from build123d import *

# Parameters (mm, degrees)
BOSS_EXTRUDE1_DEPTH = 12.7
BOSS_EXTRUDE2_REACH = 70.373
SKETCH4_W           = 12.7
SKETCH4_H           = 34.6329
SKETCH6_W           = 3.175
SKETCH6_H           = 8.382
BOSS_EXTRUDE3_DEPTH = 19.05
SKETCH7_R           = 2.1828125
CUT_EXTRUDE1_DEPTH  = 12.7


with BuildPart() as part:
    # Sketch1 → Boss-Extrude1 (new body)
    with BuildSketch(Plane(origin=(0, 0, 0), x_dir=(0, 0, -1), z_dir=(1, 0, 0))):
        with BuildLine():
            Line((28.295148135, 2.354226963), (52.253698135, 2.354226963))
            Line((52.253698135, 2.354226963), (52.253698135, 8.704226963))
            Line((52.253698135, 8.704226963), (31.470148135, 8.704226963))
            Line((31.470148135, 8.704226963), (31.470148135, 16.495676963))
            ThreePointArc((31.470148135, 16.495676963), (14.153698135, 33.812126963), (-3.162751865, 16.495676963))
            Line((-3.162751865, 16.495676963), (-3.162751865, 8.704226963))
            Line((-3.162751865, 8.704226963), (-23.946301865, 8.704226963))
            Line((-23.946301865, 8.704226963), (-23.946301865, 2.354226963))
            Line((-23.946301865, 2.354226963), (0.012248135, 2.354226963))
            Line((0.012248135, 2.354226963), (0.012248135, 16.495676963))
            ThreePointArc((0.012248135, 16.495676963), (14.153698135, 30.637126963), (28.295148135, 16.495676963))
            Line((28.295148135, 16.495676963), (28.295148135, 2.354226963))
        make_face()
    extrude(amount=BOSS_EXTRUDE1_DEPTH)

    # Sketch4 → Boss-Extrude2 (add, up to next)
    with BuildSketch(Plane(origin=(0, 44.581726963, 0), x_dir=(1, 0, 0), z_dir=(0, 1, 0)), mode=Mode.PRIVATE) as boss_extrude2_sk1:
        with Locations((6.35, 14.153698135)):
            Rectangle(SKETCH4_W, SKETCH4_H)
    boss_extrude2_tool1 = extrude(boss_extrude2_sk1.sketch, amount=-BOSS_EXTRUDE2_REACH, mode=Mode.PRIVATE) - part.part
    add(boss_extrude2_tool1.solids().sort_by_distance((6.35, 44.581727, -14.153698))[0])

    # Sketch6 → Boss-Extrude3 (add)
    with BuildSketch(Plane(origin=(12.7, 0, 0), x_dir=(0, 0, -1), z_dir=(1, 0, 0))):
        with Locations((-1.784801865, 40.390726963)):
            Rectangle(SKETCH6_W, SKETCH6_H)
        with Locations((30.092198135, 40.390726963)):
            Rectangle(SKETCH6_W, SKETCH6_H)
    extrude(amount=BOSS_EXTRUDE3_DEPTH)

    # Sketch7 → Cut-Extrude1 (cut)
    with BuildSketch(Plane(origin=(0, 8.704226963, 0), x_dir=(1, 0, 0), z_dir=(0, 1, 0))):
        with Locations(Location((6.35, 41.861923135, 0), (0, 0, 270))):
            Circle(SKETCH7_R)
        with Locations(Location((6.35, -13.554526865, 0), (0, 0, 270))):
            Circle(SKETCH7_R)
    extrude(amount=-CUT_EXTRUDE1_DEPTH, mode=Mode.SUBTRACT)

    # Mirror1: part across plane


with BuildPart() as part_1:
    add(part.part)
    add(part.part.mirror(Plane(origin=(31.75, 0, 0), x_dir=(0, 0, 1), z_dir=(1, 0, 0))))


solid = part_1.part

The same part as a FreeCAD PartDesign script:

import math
import FreeCAD as App
import Part
import Sketcher
from FreeCAD import Vector
Q = App.Units.Quantity


def add_polygon(sketch, points):
    """Adds a closed chain of lines whose ends are joined by coincident constraints."""
    first, n = sketch.GeometryCount, len(points)
    for a, b in zip(points, points[1:] + points[:1]):
        sketch.addGeometry(Part.LineSegment(App.Vector(*a, 0), App.Vector(*b, 0)), False)
    for i in range(n):
        sketch.addConstraint(Sketcher.Constraint("Coincident", first + i, 2, first + (i + 1) % n, 1))

doc = App.newDocument("Part")
body = doc.addObject("PartDesign::Body", "Body")

sketch1 = doc.addObject("Sketcher::SketchObject", "Sketch")
body.addObject(sketch1)
sketch1.AttachmentSupport = (doc.YZ_Plane, [""])
sketch1.MapMode = "FlatFace"
sketch1.addGeometry([
    Part.LineSegment(Vector(2.354227, -28.295148, 0), Vector(2.354227, -52.253698, 0)),
    Part.LineSegment(Vector(2.354227, -52.253698, 0), Vector(8.704227, -52.253698, 0)),
    Part.LineSegment(Vector(8.704227, -52.253698, 0), Vector(8.704227, -31.470148, 0)),
    Part.LineSegment(Vector(8.704227, -31.470148, 0), Vector(16.495677, -31.470148, 0)),
    Part.ArcOfCircle(Part.Circle(Vector(16.495677, -14.153698, 0), Vector(0, 0, 1), 17.31645), math.radians(-90), math.radians(90)),
    Part.LineSegment(Vector(16.495677, 3.162752, 0), Vector(8.704227, 3.162752, 0)),
    Part.LineSegment(Vector(8.704227, 3.162752, 0), Vector(8.704227, 23.946302, 0)),
    Part.LineSegment(Vector(8.704227, 23.946302, 0), Vector(2.354227, 23.946302, 0)),
    Part.LineSegment(Vector(2.354227, 23.946302, 0), Vector(2.354227, -0.012248, 0)),
    Part.LineSegment(Vector(2.354227, -0.012248, 0), Vector(16.495677, -0.012248, 0)),
    Part.ArcOfCircle(Part.Circle(Vector(16.495677, -14.153698, 0), Vector(0, 0, 1), 14.14145), math.radians(-90), math.radians(90)),
    Part.LineSegment(Vector(16.495677, -28.295148, 0), Vector(2.354227, -28.295148, 0)),
], False)
sketch1.addConstraint([
    Sketcher.Constraint("Coincident", 0, 2, 1, 1),
    Sketcher.Constraint("Coincident", 1, 2, 2, 1),
    Sketcher.Constraint("Coincident", 2, 2, 3, 1),
    Sketcher.Constraint("Tangent", 3, 2, 4, 1),
    Sketcher.Constraint("Tangent", 4, 2, 5, 1),
    Sketcher.Constraint("Coincident", 5, 2, 6, 1),
    Sketcher.Constraint("Coincident", 6, 2, 7, 1),
    Sketcher.Constraint("Coincident", 7, 2, 8, 1),
    Sketcher.Constraint("Coincident", 8, 2, 9, 1),
    Sketcher.Constraint("Tangent", 9, 2, 10, 2),
    Sketcher.Constraint("Tangent", 10, 1, 11, 1),
    Sketcher.Constraint("Coincident", 11, 2, 0, 1),
    Sketcher.Constraint("Vertical", 0),
    Sketcher.Constraint("Horizontal", 1),
    Sketcher.Constraint("Vertical", 2),
    Sketcher.Constraint("Horizontal", 3),
    Sketcher.Constraint("Horizontal", 5),
    Sketcher.Constraint("Vertical", 6),
    Sketcher.Constraint("Horizontal", 7),
    Sketcher.Constraint("Vertical", 8),
    Sketcher.Constraint("Horizontal", 9),
    Sketcher.Constraint("Horizontal", 11),
    Sketcher.Constraint("Coincident", 10, 3, 4, 3),
    Sketcher.Constraint("Vertical", 2, 2, 5, 2),
    Sketcher.Constraint("Vertical", 0, 2, 7, 2),
    Sketcher.Constraint("Equal", 2, 6),
    Sketcher.Constraint("DistanceX", 1, 1, 1, 2, Q("0.25 in")),
    Sketcher.Constraint("DistanceY", 0, 2, 4, 3, Q("1.5 in")),
    Sketcher.Constraint("Radius", 4, Q("17.31645 mm")),
    Sketcher.Constraint("Radius", 10, Q("14.14145 mm")),
    Sketcher.Constraint("DistanceX", 3, 1, 3, 2, Q("7.79145 mm")),
    Sketcher.Constraint("DistanceY", 4, 3, -1, 1, Q("14.153698 mm")),
    Sketcher.Constraint("DistanceX", -1, 1, 4, 3, Q("16.495677 mm")),
])
pad1 = doc.addObject("PartDesign::Pad", "Pad")
body.addObject(pad1)
pad1.Profile = sketch1
pad1.Length = Q("0.5 in")

sketch2 = doc.addObject("Sketcher::SketchObject", "Sketch001")
body.addObject(sketch2)
sketch2.AttachmentSupport = (doc.XZ_Plane, [""])
sketch2.MapMode = "FlatFace"
sketch2.AttachmentOffset = App.Placement(Vector(0, 0, -44.581727), App.Rotation())
add_polygon(sketch2, [(0, -31.470148), (0, 3.162752), (12.7, 3.162752), (12.7, -31.470148)])
sketch2.addConstraint([
    Sketcher.Constraint("Vertical", 0),
    Sketcher.Constraint("Horizontal", 1),
    Sketcher.Constraint("Vertical", 2),
    Sketcher.Constraint("Horizontal", 3),
    Sketcher.Constraint("PointOnObject", 0, 2, -2),
    Sketcher.Constraint("DistanceX", 1, 1, 1, 2, Q("0.5 in")),
    Sketcher.Constraint("DistanceY", 0, 1, 0, 2, Q("1.3635 in")),
    Sketcher.Constraint("DistanceY", -1, 1, 0, 2, Q("3.162752 mm")),
])
pad2 = doc.addObject("PartDesign::Pad", "Pad001")
body.addObject(pad2)
pad2.Profile = sketch2
pad2.Type = "UpToFirst"

sketch3 = doc.addObject("Sketcher::SketchObject", "Sketch002")
body.addObject(sketch3)
sketch3.AttachmentSupport = (doc.YZ_Plane, [""])
sketch3.MapMode = "FlatFace"
sketch3.AttachmentOffset = App.Placement(Vector(0, 0, 0.5 * 25.4), App.Rotation())
add_polygon(sketch3, [(44.581727, 3.372302), (36.199727, 3.372302), (36.199727, 0.197302), (44.581727, 0.197302)])
add_polygon(sketch3, [(44.581727, -28.504698), (36.199727, -28.504698), (36.199727, -31.679698), (44.581727, -31.679698)])
sketch3.addConstraint([
    Sketcher.Constraint("Horizontal", 0),
    Sketcher.Constraint("Vertical", 1),
    Sketcher.Constraint("Horizontal", 2),
    Sketcher.Constraint("Vertical", 3),
    Sketcher.Constraint("Horizontal", 4),
    Sketcher.Constraint("Vertical", 5),
    Sketcher.Constraint("Horizontal", 6),
    Sketcher.Constraint("Vertical", 7),
    Sketcher.Constraint("Vertical", 1, 2, 4, 2),
    Sketcher.Constraint("Vertical", 3, 2, 6, 2),
    Sketcher.Constraint("Equal", 3, 5),
    Sketcher.Constraint("DistanceX", 0, 2, 0, 1, Q("0.33 in")),
    Sketcher.Constraint("DistanceY", 1, 2, 1, 1, Q("0.125 in")),
    Sketcher.Constraint("DistanceY", 4, 2, 1, 2, Q("1.13 in")),
    Sketcher.Constraint("DistanceY", -1, 1, 0, 2, Q("3.372302 mm")),
    Sketcher.Constraint("DistanceX", -1, 1, 0, 2, Q("36.199727 mm")),
])
pad3 = doc.addObject("PartDesign::Pad", "Pad002")
body.addObject(pad3)
pad3.Profile = sketch3
pad3.Length = Q("0.75 in")

sketch4 = doc.addObject("Sketcher::SketchObject", "Sketch003")
body.addObject(sketch4)
sketch4.AttachmentSupport = (doc.XZ_Plane, [""])
sketch4.MapMode = "FlatFace"
sketch4.AttachmentOffset = App.Placement(Vector(0, 0, -8.704227), App.Rotation())
sketch4.addGeometry([
    Part.Circle(Vector(6.35, -41.861923, 0), Vector(0, 0, 1), 2.182812),
    Part.Circle(Vector(6.35, 13.554527, 0), Vector(0, 0, 1), 2.182812),
], False)
sketch4.addConstraint([
    Sketcher.Constraint("Equal", 0, 1),
    Sketcher.Constraint("Vertical", 0, 3, 1, 3),
    Sketcher.Constraint("Diameter", 0, Q("0.171875 in")),
    Sketcher.Constraint("DistanceX", -1, 1, 0, 3, Q("0.25 in")),
    Sketcher.Constraint("DistanceY", 0, 3, 1, 3, Q("55.41645 mm")),
    Sketcher.Constraint("DistanceY", 0, 3, -1, 1, Q("41.861923 mm")),
])
pocket1 = doc.addObject("PartDesign::Pocket", "Pocket")
body.addObject(pocket1)
pocket1.Profile = sketch4
pocket1.Length = Q("0.5 in")
pocket1.Reversed = True
body2 = doc.addObject("PartDesign::Body", "Body001")
doc.recompute()

body2.BaseFeature = body
doc.recompute()

mirroring = doc.addObject("Part::Mirroring", "Mirroring")
mirroring.Source = body
mirroring.Base = Vector(31.75, 0, 0)
mirroring.Normal = Vector(1, 0, 0)
body3 = doc.addObject("PartDesign::Body", "Body002")
body3.BaseFeature = mirroring
boolean = doc.addObject("PartDesign::Boolean", "Boolean")
body2.addObject(boolean)
boolean.Type = "Fuse"
boolean.addObjects([body3])
doc.recompute()
mirroring.Visibility = False

doc.recompute()
